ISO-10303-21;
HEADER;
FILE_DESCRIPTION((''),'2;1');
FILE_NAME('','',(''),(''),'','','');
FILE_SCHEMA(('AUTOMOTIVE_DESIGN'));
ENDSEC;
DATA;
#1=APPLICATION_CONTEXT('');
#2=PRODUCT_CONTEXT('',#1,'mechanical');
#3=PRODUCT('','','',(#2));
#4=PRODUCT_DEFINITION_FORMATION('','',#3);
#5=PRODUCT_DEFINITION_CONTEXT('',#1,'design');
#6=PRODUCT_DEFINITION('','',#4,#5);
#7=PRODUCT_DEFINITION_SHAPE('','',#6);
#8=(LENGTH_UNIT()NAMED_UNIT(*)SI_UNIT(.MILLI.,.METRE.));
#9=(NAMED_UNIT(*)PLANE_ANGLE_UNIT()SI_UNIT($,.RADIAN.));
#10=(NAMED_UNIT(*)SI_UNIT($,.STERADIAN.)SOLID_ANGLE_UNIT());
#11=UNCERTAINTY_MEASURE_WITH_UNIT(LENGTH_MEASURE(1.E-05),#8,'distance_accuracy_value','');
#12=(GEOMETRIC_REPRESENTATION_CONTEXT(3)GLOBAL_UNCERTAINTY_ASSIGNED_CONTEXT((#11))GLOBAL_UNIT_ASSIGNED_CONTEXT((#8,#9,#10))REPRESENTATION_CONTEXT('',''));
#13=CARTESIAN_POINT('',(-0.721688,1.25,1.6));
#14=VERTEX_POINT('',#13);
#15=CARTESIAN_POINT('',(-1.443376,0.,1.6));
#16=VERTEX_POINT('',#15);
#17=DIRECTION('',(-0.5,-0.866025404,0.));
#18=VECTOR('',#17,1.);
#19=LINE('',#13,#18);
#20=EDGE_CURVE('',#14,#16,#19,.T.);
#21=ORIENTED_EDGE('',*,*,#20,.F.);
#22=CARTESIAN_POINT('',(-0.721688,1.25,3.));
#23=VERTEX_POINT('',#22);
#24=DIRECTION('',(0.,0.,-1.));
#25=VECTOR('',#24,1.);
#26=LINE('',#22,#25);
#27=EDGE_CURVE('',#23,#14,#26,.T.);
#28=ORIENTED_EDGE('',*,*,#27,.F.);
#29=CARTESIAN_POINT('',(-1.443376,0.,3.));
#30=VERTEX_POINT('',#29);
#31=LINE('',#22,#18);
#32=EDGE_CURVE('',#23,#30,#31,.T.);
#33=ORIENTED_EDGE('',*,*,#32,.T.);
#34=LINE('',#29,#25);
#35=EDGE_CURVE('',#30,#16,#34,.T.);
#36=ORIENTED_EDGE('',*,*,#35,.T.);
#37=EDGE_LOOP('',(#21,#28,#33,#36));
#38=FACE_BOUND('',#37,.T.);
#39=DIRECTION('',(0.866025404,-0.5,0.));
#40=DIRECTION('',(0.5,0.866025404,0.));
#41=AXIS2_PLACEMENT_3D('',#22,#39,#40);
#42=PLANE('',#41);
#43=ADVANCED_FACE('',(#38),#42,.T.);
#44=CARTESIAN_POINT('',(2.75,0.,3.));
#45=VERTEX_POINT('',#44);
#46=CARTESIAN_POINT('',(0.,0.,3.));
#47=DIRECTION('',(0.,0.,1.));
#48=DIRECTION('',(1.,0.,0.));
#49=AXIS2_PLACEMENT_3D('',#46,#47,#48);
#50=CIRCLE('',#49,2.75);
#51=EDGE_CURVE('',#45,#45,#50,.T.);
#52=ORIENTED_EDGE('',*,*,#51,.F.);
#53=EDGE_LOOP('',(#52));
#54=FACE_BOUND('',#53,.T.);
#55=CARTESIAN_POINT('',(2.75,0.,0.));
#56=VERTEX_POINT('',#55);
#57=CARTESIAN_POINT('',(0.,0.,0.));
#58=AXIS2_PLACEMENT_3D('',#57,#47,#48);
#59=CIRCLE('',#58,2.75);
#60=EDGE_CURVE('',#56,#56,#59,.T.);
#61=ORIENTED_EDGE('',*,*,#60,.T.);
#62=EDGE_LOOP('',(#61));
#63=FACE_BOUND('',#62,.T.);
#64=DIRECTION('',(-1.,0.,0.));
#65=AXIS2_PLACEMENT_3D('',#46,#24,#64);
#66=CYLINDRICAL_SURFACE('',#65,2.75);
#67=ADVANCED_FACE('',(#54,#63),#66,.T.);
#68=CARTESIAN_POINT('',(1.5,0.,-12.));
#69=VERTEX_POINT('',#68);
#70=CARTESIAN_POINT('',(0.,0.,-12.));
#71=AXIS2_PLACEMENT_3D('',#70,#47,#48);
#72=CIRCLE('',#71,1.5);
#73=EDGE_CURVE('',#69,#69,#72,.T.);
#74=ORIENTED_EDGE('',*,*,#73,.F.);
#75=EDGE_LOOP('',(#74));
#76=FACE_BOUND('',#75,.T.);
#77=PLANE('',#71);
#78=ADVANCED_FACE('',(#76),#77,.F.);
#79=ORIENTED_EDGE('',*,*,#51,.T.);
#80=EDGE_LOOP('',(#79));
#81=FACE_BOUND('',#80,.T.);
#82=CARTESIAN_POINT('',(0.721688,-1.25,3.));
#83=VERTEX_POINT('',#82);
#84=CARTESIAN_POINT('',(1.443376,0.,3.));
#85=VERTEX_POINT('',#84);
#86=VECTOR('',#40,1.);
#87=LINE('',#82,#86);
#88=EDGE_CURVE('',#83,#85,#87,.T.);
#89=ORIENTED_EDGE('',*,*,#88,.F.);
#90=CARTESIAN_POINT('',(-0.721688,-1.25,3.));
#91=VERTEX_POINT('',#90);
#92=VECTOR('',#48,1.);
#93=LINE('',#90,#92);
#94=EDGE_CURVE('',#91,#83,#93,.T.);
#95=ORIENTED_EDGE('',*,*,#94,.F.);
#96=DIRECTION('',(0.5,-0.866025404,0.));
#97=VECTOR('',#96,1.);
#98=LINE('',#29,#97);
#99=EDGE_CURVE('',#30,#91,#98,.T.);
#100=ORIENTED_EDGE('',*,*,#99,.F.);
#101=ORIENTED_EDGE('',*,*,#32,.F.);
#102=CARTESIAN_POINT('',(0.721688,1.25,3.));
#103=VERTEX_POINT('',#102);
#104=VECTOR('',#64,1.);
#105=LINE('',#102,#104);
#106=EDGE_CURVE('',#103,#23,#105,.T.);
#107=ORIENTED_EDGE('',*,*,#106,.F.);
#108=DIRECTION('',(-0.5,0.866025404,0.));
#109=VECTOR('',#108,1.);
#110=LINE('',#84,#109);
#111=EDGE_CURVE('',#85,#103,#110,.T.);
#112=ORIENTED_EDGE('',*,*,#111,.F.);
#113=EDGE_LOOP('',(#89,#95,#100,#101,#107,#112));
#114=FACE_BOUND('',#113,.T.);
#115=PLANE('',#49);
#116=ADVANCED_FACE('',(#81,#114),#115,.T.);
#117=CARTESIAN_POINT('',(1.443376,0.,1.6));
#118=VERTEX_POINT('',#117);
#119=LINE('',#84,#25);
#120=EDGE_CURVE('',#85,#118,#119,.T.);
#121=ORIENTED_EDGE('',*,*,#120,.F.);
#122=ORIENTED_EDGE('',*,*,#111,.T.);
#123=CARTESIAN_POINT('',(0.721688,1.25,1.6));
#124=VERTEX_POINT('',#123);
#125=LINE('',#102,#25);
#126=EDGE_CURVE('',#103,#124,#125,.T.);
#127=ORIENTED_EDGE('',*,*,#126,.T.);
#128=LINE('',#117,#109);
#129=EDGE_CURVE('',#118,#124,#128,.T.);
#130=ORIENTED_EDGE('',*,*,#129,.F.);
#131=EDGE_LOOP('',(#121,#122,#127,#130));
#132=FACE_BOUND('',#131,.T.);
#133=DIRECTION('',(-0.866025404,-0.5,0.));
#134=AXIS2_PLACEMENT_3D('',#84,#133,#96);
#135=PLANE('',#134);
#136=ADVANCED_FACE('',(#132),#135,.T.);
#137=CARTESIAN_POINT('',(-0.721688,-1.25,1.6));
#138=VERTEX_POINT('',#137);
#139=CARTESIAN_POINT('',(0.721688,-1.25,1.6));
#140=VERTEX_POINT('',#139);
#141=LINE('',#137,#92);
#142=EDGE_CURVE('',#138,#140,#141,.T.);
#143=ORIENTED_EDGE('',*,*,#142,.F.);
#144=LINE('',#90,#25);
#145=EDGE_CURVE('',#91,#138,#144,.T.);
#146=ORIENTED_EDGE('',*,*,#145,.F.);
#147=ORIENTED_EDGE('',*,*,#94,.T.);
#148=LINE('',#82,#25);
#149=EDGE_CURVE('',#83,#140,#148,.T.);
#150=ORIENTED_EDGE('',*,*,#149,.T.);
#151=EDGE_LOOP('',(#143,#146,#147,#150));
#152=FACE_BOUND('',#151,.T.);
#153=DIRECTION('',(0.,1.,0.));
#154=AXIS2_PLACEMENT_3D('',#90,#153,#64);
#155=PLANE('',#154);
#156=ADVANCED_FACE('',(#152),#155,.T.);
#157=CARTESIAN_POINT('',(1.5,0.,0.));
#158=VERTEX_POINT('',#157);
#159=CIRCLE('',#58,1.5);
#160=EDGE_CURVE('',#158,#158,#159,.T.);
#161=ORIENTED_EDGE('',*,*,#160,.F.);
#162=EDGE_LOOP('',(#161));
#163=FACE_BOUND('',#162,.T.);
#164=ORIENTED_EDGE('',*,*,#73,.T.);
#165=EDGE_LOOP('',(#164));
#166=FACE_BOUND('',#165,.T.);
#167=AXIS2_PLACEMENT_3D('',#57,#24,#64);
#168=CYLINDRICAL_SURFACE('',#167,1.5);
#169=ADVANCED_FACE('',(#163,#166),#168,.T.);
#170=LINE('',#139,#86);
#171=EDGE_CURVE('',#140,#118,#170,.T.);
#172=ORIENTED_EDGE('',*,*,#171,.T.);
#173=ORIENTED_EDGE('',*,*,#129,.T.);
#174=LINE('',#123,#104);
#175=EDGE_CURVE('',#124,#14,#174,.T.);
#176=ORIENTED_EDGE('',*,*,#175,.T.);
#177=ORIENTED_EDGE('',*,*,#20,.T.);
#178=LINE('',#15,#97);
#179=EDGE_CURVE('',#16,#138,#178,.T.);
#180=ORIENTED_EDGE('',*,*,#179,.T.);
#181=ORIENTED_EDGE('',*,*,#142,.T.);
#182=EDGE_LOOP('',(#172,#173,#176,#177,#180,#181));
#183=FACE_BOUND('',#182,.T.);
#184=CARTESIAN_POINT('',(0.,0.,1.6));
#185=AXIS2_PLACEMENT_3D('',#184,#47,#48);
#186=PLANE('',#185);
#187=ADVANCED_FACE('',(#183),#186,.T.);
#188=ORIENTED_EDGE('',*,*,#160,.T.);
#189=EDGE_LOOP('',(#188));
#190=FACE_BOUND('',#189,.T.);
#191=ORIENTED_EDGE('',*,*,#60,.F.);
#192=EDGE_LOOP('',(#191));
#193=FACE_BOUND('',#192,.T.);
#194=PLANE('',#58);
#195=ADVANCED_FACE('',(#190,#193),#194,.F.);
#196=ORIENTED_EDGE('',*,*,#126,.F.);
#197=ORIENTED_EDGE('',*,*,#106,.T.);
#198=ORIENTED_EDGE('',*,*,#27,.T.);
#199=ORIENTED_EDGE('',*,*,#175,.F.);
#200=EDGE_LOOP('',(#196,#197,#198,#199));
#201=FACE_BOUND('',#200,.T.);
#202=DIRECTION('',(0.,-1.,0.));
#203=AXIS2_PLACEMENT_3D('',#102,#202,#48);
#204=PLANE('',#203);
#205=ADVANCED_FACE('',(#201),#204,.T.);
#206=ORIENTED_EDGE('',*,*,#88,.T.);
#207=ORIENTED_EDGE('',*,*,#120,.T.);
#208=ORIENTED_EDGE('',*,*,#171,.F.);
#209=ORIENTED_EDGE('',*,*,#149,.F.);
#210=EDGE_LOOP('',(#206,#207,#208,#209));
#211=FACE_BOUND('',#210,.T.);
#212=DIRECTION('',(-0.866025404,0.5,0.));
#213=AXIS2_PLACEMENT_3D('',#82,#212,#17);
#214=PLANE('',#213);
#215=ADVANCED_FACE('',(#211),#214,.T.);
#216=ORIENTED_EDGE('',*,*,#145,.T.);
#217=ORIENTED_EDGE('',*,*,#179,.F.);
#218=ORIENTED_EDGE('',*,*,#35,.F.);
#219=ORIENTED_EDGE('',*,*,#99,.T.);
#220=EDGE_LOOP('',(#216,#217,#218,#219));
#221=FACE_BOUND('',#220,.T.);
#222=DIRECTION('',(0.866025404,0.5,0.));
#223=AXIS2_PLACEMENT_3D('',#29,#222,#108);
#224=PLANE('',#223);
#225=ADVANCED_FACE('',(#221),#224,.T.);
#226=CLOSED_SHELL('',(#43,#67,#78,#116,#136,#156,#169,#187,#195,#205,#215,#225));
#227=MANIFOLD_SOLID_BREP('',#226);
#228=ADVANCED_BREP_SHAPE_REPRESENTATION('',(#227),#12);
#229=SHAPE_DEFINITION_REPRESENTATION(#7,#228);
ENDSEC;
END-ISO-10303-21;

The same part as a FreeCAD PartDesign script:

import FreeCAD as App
import Part
import Sketcher

V = App.Vector
Q = App.Units.Quantity


def add_polygon(sketch, points):
    """Adds a closed chain of lines whose ends are joined by coincident constraints."""
    first, n = sketch.GeometryCount, len(points)
    for a, b in zip(points, points[1:] + points[:1]):
        sketch.addGeometry(Part.LineSegment(App.Vector(*a, 0), App.Vector(*b, 0)), False)
    for i in range(n):
        sketch.addConstraint(Sketcher.Constraint("Coincident", first + i, 2, first + (i + 1) % n, 1))

doc = App.newDocument("Part")
body = doc.addObject("PartDesign::Body", "Body")

# Sketch on XY plane
sketch1 = body.newObject("Sketcher::SketchObject", "Sketch")
sketch1.AttachmentSupport = (doc.getObject("XY_Plane"), [""])
sketch1.MapMode = "FlatFace"
sketch1.addGeometry(Part.Circle(V(0, 0, 0), V(0, 0, 1), 2.75), False)
sketch1.addConstraint([
    Sketcher.Constraint("Coincident", 0, 3, -1, 1),
    Sketcher.Constraint("Diameter", 0, Q("5.5 mm")),
])
pad1 = body.newObject("PartDesign::Pad", "Pad")
pad1.Profile = sketch1
pad1.Length = 3

# Sketch on XY plane
sketch2 = body.newObject("Sketcher::SketchObject", "Sketch001")
sketch2.AttachmentSupport = (doc.getObject("XY_Plane"), [""])
sketch2.MapMode = "FlatFace"
sketch2.AttachmentOffset = App.Placement(V(0, 0, -12), App.Rotation())
sketch2.addGeometry(Part.Circle(V(0, 0, 0), V(0, 0, 1), 1.5), False)
sketch2.addConstraint([
    Sketcher.Constraint("Coincident", 0, 3, -1, 1),
    Sketcher.Constraint("Diameter", 0, Q("3 mm")),
])
pad2 = body.newObject("PartDesign::Pad", "Pad001")
pad2.Profile = sketch2
pad2.Length = 12

# Sketch on XY plane
sketch3 = body.newObject("Sketcher::SketchObject", "Sketch002")
sketch3.AttachmentSupport = (doc.getObject("XY_Plane"), [""])
sketch3.MapMode = "FlatFace"
sketch3.AttachmentOffset = App.Placement(V(0, 0, 1.6), App.Rotation())
add_polygon(sketch3, [(1.443376, 0), (0.721688, 1.25), (-0.721688, 1.25), (-1.443376, 0), (-0.721688, -1.25), (0.721688, -1.25)])  # lines 0-5
sketch3.addConstraint([
    Sketcher.Constraint("Horizontal", 1),
    Sketcher.Constraint("Horizontal", 4),
    Sketcher.Constraint("Symmetric", 0, 2, 3, 2, -1, 1),
    Sketcher.Constraint("Symmetric", 2, 2, 5, 2, -1, 1),
    Sketcher.Constraint("PointOnObject", 2, 2, -1),
    Sketcher.Constraint("Parallel", 2, 5),
    Sketcher.Constraint("Vertical", 1, 2, 3, 2),
    Sketcher.Constraint("Angle", 0, Q("120 deg")),
    Sketcher.Constraint("DistanceY", 3, 2, 1, 2, Q("2.5 mm")),
    Sketcher.Constraint("DistanceX", 1, 2, 1, 1, Q("1.443376 mm")),
])
pocket1 = body.newObject("PartDesign::Pocket", "Pocket")
pocket1.Profile = sketch3
pocket1.Length = 1.4
pocket1.Reversed = True

doc.recompute()
